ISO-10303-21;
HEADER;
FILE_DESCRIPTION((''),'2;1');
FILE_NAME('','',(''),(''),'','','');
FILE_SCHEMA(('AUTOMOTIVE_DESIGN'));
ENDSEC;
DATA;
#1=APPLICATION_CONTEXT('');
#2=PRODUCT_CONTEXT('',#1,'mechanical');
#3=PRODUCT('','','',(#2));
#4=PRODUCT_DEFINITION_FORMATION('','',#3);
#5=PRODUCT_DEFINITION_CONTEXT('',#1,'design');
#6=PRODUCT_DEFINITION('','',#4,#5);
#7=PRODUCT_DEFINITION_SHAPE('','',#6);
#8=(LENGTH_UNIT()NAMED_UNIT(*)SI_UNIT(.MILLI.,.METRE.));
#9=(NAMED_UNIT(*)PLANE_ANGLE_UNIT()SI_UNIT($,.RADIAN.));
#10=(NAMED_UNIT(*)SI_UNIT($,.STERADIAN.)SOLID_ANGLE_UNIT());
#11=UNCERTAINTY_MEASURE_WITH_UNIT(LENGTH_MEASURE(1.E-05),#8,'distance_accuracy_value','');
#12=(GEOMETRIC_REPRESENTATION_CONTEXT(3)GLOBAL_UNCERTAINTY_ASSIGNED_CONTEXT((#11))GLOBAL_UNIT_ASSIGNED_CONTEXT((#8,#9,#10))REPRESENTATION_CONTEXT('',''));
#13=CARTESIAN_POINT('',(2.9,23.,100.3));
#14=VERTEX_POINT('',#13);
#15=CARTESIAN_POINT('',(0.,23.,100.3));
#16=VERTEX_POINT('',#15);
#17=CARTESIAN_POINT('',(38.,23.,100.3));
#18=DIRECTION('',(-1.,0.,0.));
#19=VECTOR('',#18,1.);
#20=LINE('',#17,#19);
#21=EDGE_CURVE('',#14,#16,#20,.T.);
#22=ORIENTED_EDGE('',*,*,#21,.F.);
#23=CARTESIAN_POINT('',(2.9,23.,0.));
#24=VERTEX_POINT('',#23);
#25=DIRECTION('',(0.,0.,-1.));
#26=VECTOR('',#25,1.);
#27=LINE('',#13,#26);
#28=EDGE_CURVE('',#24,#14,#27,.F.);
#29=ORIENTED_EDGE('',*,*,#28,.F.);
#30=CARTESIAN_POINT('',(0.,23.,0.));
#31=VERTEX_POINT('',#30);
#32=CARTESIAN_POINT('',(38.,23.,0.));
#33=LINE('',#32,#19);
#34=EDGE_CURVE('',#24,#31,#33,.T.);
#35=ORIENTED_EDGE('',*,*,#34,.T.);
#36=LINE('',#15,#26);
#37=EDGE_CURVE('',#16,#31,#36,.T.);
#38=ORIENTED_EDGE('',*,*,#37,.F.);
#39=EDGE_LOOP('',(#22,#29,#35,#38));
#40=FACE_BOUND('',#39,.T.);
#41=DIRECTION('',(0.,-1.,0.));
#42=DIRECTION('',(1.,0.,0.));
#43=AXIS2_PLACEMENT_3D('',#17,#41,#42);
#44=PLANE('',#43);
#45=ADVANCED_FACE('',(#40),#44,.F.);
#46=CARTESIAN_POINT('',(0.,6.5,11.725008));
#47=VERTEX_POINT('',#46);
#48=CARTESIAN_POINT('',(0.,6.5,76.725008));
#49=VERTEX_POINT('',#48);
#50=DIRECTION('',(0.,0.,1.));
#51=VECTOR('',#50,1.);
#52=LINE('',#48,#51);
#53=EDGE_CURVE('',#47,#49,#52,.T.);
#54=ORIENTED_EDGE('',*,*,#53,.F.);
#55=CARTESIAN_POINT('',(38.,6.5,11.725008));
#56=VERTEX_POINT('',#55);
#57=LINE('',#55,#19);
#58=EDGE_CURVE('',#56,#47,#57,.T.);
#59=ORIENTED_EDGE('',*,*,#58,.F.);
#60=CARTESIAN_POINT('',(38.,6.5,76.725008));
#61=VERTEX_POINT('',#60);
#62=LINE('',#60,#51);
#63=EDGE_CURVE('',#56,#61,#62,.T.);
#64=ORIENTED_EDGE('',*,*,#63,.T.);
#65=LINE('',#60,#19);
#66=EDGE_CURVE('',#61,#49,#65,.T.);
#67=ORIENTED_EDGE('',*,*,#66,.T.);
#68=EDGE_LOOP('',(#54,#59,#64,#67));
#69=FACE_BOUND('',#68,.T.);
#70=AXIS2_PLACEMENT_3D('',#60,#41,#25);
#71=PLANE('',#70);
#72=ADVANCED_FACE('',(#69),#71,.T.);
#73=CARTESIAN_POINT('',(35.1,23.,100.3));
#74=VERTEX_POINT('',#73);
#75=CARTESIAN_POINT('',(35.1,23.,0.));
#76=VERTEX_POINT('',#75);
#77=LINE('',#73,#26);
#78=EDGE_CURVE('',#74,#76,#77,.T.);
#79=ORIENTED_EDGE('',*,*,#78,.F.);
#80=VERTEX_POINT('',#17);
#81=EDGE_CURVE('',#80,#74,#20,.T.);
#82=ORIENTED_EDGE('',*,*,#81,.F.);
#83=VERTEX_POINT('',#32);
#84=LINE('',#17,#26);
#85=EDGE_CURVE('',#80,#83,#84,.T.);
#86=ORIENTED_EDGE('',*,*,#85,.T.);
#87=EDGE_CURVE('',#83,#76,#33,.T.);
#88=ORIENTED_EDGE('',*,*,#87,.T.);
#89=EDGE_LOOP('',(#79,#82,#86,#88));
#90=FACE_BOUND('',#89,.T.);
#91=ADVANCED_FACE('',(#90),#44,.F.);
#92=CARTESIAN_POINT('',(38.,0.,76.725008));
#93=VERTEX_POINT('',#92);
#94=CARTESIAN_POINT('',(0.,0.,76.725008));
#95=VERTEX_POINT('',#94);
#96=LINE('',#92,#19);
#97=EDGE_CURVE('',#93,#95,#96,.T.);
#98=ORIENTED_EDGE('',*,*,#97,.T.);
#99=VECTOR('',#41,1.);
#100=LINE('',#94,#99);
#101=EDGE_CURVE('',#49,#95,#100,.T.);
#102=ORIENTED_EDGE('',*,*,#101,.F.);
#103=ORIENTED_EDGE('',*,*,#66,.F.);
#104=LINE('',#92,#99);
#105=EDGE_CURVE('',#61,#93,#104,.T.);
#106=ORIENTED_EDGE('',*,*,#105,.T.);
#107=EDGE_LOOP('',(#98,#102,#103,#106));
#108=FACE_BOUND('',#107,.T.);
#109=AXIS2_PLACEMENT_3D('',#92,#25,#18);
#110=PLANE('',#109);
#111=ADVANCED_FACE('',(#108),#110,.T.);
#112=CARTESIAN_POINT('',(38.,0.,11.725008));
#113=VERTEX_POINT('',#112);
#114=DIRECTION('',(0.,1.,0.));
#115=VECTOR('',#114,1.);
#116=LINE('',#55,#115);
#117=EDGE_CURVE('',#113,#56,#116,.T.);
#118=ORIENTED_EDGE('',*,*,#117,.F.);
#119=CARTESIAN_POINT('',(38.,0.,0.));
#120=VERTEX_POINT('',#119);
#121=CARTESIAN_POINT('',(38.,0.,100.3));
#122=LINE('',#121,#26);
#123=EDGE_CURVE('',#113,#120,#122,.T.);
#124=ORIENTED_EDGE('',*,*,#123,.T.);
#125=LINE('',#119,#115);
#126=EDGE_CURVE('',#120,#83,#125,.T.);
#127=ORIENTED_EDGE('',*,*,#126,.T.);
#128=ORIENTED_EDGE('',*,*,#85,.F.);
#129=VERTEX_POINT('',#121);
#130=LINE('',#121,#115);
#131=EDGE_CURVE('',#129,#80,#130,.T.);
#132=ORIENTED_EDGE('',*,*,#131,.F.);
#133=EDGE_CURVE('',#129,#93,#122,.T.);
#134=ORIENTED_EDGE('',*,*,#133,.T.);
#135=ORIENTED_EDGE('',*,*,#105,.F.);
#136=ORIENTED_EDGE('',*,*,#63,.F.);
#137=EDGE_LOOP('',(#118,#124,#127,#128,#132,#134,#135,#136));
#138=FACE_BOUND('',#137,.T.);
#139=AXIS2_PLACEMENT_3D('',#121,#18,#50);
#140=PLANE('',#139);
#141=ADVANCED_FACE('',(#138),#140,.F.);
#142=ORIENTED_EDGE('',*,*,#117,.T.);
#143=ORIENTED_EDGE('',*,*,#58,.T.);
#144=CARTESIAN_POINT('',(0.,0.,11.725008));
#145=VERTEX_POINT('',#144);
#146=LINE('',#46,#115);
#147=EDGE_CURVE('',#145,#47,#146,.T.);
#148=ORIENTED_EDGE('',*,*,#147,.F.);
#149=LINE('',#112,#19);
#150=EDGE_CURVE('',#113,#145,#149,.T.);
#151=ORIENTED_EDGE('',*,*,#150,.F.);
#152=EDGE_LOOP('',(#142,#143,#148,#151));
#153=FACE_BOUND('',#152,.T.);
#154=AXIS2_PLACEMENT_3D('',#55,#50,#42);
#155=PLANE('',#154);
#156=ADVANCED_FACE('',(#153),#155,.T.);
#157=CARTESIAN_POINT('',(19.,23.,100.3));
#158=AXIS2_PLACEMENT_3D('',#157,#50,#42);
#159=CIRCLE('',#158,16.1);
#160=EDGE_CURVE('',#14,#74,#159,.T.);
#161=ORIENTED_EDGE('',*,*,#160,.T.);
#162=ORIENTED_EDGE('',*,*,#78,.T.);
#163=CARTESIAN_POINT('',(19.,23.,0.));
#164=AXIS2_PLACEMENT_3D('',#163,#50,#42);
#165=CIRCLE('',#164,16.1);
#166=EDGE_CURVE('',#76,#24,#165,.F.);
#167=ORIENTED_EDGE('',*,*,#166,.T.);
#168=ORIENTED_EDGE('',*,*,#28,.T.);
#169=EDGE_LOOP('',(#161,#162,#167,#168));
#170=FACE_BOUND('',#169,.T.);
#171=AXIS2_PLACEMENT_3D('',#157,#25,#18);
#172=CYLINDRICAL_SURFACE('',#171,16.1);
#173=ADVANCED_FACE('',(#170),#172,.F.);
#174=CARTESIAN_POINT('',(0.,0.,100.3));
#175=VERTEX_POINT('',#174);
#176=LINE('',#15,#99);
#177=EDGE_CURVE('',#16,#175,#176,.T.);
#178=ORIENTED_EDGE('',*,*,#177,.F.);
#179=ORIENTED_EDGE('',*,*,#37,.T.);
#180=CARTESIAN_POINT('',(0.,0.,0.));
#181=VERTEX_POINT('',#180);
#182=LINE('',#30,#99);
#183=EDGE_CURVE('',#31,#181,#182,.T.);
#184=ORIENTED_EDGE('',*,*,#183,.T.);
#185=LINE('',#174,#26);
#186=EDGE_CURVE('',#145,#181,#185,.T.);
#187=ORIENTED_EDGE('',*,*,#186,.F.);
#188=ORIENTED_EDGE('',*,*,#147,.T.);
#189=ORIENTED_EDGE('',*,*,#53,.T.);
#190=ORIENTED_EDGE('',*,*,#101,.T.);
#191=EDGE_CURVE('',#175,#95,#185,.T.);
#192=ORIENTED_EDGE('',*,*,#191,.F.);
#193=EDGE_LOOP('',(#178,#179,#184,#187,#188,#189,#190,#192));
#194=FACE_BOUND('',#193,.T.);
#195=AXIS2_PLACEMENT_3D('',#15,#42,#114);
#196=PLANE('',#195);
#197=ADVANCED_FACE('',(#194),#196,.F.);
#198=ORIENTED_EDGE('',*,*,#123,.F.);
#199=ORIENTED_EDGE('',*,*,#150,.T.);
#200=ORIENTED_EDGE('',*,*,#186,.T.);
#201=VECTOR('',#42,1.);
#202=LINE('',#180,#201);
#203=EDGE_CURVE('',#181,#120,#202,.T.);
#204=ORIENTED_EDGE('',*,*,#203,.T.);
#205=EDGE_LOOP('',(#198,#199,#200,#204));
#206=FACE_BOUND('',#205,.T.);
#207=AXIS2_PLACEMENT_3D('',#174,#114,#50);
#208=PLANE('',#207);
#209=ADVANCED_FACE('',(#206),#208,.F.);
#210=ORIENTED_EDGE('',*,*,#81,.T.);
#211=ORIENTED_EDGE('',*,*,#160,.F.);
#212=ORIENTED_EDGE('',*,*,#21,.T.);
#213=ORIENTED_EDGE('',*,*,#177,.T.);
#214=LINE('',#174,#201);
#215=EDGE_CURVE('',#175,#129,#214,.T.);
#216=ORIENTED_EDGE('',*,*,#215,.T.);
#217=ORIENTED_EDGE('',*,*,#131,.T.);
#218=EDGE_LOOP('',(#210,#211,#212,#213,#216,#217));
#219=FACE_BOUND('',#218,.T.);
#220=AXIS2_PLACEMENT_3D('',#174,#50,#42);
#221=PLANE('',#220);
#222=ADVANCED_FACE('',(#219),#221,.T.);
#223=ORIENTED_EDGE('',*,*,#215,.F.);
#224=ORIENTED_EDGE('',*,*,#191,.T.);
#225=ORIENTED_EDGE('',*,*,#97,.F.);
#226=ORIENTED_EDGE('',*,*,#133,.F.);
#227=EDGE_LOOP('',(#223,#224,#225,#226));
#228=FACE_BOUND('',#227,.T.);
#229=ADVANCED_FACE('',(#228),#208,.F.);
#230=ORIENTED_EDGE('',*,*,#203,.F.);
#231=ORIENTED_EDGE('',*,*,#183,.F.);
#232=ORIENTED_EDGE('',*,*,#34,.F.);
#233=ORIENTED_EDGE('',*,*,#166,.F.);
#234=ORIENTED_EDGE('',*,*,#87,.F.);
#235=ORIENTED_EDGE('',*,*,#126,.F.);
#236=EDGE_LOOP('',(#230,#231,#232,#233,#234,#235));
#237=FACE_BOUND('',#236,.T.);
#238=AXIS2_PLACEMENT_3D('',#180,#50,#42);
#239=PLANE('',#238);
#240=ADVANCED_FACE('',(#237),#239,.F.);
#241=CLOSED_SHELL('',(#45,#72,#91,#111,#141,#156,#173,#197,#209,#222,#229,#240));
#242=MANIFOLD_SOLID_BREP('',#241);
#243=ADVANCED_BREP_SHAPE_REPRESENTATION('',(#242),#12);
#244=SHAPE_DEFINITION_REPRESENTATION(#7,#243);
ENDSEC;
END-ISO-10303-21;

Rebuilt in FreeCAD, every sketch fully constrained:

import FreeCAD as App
import Part
import Sketcher
from FreeCAD import Vector
Q = App.Units.Quantity


def add_polygon(sketch, points):
    """Adds a closed chain of lines whose ends are joined by coincident constraints."""
    first, n = sketch.GeometryCount, len(points)
    for a, b in zip(points, points[1:] + points[:1]):
        sketch.addGeometry(Part.LineSegment(App.Vector(*a, 0), App.Vector(*b, 0)), False)
    for i in range(n):
        sketch.addConstraint(Sketcher.Constraint("Coincident", first + i, 2, first + (i + 1) % n, 1))

doc = App.newDocument("Part")
body = doc.addObject("PartDesign::Body", "Body")

sketch1 = body.newObject("Sketcher::SketchObject", "Sketch")
sketch1.AttachmentSupport = (doc.getObject("XY_Plane"), [""])
sketch1.MapMode = "FlatFace"
add_polygon(sketch1, [(0, 23), (0, 0), (38, 0), (38, 23)])
sketch1.addConstraint([
    Sketcher.Constraint("Vertical", 0),
    Sketcher.Constraint("Horizontal", 1),
    Sketcher.Constraint("Vertical", 2),
    Sketcher.Constraint("Horizontal", 3),
    Sketcher.Constraint("Coincident", 0, 2, -1, 1),
    Sketcher.Constraint("DistanceX", 1, 1, 1, 2, Q("38 mm")),
    Sketcher.Constraint("DistanceY", 0, 2, 0, 1, Q("23 mm")),
])
pad1 = body.newObject("PartDesign::Pad", "Pad")
pad1.Profile = sketch1
pad1.Length = 100.3

sketch2 = body.newObject("Sketcher::SketchObject", "Sketch001")
sketch2.AttachmentSupport = (doc.getObject("XY_Plane"), [""])
sketch2.MapMode = "FlatFace"
sketch2.addGeometry(Part.Circle(Vector(19, 23, 0), Vector(0, 0, 1), 16), False)
sketch2.addConstraint([
    Sketcher.Constraint("Diameter", 0, Q("32.2 mm")),
    Sketcher.Constraint("DistanceX", -1, 1, 0, 3, Q("19 mm")),
    Sketcher.Constraint("DistanceY", -1, 1, 0, 3, Q("23 mm")),
])
pocket1 = body.newObject("PartDesign::Pocket", "Pocket")
pocket1.Profile = sketch2
pocket1.Type = "ThroughAll"
pocket1.Reversed = True

sketch3 = body.newObject("Sketcher::SketchObject", "Sketch002")
sketch3.AttachmentSupport = (doc.getObject("YZ_Plane"), [""])
sketch3.MapMode = "FlatFace"
add_polygon(sketch3, [(6, 77), (0, 77), (0, 12), (6, 12)])
sketch3.addConstraint([
    Sketcher.Constraint("Horizontal", 0),
    Sketcher.Constraint("Vertical", 1),
    Sketcher.Constraint("Horizontal", 2),
    Sketcher.Constraint("Vertical", 3),
    Sketcher.Constraint("PointOnObject", 0, 2, -2),
    Sketcher.Constraint("DistanceY", 1, 2, 1, 1, Q("65 mm")),
    Sketcher.Constraint("DistanceX", 0, 2, 0, 1, Q("6.5 mm")),
    Sketcher.Constraint("DistanceY", -1, 1, 0, 2, Q("76.725008 mm")),
])
pocket2 = body.newObject("PartDesign::Pocket", "Pocket001")
pocket2.Profile = sketch3
pocket2.Type = "ThroughAll"
pocket2.Reversed = True

doc.recompute()
